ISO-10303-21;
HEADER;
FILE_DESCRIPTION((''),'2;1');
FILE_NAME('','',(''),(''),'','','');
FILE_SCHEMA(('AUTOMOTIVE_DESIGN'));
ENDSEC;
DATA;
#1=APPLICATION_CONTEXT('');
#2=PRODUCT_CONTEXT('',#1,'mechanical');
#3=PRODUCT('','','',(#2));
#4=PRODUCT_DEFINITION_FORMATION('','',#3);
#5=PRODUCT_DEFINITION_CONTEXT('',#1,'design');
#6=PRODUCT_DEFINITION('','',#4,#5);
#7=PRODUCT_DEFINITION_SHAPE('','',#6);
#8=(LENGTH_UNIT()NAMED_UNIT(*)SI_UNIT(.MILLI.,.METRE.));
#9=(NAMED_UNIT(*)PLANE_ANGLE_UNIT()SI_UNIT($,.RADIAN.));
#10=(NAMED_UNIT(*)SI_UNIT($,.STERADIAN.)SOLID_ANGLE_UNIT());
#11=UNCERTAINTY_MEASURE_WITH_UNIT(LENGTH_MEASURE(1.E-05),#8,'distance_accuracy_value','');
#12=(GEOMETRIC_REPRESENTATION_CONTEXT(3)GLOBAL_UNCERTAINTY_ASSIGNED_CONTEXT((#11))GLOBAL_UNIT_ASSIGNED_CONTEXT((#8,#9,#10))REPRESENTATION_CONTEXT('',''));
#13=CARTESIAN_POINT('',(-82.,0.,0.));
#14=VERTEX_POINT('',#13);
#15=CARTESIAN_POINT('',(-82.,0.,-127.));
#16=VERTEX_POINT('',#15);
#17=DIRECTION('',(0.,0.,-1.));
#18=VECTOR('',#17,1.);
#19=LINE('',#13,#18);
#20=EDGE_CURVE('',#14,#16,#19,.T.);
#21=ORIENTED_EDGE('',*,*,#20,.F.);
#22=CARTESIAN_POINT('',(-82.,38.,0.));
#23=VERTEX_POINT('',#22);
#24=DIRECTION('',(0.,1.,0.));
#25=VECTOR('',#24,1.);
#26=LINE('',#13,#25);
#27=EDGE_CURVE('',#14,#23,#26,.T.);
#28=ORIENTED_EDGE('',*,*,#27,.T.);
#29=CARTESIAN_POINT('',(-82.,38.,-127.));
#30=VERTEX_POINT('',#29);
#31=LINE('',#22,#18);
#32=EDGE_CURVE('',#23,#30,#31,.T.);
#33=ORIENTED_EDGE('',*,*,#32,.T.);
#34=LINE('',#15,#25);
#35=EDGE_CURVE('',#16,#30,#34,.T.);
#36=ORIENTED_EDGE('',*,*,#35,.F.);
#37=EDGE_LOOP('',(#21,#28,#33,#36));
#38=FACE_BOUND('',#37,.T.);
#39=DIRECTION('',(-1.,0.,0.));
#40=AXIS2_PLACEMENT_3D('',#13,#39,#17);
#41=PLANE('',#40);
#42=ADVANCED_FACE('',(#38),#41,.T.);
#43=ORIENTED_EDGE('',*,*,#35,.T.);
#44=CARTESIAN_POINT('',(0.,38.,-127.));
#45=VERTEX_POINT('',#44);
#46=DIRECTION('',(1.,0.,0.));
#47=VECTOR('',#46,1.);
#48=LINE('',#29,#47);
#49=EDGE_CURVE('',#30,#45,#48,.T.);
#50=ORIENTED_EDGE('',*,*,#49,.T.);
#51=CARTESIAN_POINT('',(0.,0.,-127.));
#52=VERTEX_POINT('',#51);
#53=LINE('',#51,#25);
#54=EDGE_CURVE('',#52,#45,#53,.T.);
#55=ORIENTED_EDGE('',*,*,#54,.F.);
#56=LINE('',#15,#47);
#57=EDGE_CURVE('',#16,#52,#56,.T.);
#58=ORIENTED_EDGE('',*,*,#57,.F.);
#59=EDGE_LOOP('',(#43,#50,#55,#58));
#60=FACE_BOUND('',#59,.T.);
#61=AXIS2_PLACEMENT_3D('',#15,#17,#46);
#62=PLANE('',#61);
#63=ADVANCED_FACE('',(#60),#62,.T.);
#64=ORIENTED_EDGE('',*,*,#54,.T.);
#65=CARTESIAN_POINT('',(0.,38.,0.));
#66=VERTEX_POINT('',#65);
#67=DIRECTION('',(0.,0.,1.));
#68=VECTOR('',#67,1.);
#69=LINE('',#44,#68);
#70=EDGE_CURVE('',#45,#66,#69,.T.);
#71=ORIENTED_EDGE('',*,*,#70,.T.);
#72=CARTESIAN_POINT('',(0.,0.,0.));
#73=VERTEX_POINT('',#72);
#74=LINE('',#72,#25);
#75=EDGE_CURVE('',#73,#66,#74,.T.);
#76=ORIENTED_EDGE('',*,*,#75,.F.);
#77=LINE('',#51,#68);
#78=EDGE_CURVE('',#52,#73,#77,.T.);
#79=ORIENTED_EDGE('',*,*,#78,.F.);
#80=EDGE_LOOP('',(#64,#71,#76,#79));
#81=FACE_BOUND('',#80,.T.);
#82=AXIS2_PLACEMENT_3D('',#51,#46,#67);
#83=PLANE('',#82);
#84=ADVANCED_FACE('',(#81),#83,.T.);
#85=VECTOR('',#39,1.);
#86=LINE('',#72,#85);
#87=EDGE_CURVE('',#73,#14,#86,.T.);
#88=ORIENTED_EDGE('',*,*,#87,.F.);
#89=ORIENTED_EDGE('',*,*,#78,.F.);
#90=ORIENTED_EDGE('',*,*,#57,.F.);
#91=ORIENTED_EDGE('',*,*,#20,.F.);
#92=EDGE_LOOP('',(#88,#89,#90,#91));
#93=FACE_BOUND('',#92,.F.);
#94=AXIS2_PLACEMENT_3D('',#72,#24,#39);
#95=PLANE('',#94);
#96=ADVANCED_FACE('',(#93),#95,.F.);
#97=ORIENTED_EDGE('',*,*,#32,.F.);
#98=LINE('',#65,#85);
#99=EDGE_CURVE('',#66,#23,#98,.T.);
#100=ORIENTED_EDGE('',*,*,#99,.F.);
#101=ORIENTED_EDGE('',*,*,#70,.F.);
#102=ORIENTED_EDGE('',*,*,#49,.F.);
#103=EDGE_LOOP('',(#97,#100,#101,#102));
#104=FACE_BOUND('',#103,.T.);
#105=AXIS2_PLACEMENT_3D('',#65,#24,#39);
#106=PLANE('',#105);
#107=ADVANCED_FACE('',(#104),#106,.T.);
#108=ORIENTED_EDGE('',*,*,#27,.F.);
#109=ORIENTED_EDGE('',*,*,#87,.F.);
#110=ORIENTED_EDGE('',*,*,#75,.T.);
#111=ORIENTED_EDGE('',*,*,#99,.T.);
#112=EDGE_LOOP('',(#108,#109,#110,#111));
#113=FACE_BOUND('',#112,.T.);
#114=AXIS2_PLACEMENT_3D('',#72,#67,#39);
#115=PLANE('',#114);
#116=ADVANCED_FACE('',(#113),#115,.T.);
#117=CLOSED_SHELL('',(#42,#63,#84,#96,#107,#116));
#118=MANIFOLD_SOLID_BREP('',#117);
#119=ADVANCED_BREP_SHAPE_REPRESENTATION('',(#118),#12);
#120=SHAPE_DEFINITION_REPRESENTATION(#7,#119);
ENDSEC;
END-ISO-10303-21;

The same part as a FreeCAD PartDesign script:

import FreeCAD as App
import Part
import Sketcher
Q = App.Units.Quantity

doc = App.newDocument("Part")
body = doc.addObject("PartDesign::Body", "Body")

sketch1 = body.newObject("Sketcher::SketchObject", "Sketch")
sketch1.AttachmentSupport = (doc.getObject("XZ_Plane"), [""])
sketch1.MapMode = "FlatFace"
sketch1.addGeometry(Part.LineSegment(App.Vector(-82, 0, 0), App.Vector(0, 0, 0)), False)
sketch1.addGeometry(Part.LineSegment(App.Vector(0, 0, 0), App.Vector(0, -127, 0)), False)
sketch1.addGeometry(Part.LineSegment(App.Vector(0, -127, 0), App.Vector(-82, -127, 0)), False)
sketch1.addGeometry(Part.LineSegment(App.Vector(-82, -127, 0), App.Vector(-82, 0, 0)), False)
sketch1.addConstraint(Sketcher.Constraint("Coincident", 0, 2, 1, 1))
sketch1.addConstraint(Sketcher.Constraint("Coincident", 1, 2, 2, 1))
sketch1.addConstraint(Sketcher.Constraint("Coincident", 2, 2, 3, 1))
sketch1.addConstraint(Sketcher.Constraint("Coincident", 3, 2, 0, 1))
sketch1.addConstraint(Sketcher.Constraint("Horizontal", 0))
sketch1.addConstraint(Sketcher.Constraint("Vertical", 1))
sketch1.addConstraint(Sketcher.Constraint("Horizontal", 2))
sketch1.addConstraint(Sketcher.Constraint("Vertical", 3))
sketch1.addConstraint(Sketcher.Constraint("Coincident", 0, 2, -1, 1))
sketch1.addConstraint(Sketcher.Constraint("DistanceX", 0, 1, 0, 2, Q("82 mm")))
sketch1.addConstraint(Sketcher.Constraint("DistanceY", 1, 2, 1, 1, Q("127 mm")))
pad1 = body.newObject("PartDesign::Pad", "Pad")
pad1.Profile = sketch1
pad1.Length = 38
pad1.Reversed = True

doc.recompute()
